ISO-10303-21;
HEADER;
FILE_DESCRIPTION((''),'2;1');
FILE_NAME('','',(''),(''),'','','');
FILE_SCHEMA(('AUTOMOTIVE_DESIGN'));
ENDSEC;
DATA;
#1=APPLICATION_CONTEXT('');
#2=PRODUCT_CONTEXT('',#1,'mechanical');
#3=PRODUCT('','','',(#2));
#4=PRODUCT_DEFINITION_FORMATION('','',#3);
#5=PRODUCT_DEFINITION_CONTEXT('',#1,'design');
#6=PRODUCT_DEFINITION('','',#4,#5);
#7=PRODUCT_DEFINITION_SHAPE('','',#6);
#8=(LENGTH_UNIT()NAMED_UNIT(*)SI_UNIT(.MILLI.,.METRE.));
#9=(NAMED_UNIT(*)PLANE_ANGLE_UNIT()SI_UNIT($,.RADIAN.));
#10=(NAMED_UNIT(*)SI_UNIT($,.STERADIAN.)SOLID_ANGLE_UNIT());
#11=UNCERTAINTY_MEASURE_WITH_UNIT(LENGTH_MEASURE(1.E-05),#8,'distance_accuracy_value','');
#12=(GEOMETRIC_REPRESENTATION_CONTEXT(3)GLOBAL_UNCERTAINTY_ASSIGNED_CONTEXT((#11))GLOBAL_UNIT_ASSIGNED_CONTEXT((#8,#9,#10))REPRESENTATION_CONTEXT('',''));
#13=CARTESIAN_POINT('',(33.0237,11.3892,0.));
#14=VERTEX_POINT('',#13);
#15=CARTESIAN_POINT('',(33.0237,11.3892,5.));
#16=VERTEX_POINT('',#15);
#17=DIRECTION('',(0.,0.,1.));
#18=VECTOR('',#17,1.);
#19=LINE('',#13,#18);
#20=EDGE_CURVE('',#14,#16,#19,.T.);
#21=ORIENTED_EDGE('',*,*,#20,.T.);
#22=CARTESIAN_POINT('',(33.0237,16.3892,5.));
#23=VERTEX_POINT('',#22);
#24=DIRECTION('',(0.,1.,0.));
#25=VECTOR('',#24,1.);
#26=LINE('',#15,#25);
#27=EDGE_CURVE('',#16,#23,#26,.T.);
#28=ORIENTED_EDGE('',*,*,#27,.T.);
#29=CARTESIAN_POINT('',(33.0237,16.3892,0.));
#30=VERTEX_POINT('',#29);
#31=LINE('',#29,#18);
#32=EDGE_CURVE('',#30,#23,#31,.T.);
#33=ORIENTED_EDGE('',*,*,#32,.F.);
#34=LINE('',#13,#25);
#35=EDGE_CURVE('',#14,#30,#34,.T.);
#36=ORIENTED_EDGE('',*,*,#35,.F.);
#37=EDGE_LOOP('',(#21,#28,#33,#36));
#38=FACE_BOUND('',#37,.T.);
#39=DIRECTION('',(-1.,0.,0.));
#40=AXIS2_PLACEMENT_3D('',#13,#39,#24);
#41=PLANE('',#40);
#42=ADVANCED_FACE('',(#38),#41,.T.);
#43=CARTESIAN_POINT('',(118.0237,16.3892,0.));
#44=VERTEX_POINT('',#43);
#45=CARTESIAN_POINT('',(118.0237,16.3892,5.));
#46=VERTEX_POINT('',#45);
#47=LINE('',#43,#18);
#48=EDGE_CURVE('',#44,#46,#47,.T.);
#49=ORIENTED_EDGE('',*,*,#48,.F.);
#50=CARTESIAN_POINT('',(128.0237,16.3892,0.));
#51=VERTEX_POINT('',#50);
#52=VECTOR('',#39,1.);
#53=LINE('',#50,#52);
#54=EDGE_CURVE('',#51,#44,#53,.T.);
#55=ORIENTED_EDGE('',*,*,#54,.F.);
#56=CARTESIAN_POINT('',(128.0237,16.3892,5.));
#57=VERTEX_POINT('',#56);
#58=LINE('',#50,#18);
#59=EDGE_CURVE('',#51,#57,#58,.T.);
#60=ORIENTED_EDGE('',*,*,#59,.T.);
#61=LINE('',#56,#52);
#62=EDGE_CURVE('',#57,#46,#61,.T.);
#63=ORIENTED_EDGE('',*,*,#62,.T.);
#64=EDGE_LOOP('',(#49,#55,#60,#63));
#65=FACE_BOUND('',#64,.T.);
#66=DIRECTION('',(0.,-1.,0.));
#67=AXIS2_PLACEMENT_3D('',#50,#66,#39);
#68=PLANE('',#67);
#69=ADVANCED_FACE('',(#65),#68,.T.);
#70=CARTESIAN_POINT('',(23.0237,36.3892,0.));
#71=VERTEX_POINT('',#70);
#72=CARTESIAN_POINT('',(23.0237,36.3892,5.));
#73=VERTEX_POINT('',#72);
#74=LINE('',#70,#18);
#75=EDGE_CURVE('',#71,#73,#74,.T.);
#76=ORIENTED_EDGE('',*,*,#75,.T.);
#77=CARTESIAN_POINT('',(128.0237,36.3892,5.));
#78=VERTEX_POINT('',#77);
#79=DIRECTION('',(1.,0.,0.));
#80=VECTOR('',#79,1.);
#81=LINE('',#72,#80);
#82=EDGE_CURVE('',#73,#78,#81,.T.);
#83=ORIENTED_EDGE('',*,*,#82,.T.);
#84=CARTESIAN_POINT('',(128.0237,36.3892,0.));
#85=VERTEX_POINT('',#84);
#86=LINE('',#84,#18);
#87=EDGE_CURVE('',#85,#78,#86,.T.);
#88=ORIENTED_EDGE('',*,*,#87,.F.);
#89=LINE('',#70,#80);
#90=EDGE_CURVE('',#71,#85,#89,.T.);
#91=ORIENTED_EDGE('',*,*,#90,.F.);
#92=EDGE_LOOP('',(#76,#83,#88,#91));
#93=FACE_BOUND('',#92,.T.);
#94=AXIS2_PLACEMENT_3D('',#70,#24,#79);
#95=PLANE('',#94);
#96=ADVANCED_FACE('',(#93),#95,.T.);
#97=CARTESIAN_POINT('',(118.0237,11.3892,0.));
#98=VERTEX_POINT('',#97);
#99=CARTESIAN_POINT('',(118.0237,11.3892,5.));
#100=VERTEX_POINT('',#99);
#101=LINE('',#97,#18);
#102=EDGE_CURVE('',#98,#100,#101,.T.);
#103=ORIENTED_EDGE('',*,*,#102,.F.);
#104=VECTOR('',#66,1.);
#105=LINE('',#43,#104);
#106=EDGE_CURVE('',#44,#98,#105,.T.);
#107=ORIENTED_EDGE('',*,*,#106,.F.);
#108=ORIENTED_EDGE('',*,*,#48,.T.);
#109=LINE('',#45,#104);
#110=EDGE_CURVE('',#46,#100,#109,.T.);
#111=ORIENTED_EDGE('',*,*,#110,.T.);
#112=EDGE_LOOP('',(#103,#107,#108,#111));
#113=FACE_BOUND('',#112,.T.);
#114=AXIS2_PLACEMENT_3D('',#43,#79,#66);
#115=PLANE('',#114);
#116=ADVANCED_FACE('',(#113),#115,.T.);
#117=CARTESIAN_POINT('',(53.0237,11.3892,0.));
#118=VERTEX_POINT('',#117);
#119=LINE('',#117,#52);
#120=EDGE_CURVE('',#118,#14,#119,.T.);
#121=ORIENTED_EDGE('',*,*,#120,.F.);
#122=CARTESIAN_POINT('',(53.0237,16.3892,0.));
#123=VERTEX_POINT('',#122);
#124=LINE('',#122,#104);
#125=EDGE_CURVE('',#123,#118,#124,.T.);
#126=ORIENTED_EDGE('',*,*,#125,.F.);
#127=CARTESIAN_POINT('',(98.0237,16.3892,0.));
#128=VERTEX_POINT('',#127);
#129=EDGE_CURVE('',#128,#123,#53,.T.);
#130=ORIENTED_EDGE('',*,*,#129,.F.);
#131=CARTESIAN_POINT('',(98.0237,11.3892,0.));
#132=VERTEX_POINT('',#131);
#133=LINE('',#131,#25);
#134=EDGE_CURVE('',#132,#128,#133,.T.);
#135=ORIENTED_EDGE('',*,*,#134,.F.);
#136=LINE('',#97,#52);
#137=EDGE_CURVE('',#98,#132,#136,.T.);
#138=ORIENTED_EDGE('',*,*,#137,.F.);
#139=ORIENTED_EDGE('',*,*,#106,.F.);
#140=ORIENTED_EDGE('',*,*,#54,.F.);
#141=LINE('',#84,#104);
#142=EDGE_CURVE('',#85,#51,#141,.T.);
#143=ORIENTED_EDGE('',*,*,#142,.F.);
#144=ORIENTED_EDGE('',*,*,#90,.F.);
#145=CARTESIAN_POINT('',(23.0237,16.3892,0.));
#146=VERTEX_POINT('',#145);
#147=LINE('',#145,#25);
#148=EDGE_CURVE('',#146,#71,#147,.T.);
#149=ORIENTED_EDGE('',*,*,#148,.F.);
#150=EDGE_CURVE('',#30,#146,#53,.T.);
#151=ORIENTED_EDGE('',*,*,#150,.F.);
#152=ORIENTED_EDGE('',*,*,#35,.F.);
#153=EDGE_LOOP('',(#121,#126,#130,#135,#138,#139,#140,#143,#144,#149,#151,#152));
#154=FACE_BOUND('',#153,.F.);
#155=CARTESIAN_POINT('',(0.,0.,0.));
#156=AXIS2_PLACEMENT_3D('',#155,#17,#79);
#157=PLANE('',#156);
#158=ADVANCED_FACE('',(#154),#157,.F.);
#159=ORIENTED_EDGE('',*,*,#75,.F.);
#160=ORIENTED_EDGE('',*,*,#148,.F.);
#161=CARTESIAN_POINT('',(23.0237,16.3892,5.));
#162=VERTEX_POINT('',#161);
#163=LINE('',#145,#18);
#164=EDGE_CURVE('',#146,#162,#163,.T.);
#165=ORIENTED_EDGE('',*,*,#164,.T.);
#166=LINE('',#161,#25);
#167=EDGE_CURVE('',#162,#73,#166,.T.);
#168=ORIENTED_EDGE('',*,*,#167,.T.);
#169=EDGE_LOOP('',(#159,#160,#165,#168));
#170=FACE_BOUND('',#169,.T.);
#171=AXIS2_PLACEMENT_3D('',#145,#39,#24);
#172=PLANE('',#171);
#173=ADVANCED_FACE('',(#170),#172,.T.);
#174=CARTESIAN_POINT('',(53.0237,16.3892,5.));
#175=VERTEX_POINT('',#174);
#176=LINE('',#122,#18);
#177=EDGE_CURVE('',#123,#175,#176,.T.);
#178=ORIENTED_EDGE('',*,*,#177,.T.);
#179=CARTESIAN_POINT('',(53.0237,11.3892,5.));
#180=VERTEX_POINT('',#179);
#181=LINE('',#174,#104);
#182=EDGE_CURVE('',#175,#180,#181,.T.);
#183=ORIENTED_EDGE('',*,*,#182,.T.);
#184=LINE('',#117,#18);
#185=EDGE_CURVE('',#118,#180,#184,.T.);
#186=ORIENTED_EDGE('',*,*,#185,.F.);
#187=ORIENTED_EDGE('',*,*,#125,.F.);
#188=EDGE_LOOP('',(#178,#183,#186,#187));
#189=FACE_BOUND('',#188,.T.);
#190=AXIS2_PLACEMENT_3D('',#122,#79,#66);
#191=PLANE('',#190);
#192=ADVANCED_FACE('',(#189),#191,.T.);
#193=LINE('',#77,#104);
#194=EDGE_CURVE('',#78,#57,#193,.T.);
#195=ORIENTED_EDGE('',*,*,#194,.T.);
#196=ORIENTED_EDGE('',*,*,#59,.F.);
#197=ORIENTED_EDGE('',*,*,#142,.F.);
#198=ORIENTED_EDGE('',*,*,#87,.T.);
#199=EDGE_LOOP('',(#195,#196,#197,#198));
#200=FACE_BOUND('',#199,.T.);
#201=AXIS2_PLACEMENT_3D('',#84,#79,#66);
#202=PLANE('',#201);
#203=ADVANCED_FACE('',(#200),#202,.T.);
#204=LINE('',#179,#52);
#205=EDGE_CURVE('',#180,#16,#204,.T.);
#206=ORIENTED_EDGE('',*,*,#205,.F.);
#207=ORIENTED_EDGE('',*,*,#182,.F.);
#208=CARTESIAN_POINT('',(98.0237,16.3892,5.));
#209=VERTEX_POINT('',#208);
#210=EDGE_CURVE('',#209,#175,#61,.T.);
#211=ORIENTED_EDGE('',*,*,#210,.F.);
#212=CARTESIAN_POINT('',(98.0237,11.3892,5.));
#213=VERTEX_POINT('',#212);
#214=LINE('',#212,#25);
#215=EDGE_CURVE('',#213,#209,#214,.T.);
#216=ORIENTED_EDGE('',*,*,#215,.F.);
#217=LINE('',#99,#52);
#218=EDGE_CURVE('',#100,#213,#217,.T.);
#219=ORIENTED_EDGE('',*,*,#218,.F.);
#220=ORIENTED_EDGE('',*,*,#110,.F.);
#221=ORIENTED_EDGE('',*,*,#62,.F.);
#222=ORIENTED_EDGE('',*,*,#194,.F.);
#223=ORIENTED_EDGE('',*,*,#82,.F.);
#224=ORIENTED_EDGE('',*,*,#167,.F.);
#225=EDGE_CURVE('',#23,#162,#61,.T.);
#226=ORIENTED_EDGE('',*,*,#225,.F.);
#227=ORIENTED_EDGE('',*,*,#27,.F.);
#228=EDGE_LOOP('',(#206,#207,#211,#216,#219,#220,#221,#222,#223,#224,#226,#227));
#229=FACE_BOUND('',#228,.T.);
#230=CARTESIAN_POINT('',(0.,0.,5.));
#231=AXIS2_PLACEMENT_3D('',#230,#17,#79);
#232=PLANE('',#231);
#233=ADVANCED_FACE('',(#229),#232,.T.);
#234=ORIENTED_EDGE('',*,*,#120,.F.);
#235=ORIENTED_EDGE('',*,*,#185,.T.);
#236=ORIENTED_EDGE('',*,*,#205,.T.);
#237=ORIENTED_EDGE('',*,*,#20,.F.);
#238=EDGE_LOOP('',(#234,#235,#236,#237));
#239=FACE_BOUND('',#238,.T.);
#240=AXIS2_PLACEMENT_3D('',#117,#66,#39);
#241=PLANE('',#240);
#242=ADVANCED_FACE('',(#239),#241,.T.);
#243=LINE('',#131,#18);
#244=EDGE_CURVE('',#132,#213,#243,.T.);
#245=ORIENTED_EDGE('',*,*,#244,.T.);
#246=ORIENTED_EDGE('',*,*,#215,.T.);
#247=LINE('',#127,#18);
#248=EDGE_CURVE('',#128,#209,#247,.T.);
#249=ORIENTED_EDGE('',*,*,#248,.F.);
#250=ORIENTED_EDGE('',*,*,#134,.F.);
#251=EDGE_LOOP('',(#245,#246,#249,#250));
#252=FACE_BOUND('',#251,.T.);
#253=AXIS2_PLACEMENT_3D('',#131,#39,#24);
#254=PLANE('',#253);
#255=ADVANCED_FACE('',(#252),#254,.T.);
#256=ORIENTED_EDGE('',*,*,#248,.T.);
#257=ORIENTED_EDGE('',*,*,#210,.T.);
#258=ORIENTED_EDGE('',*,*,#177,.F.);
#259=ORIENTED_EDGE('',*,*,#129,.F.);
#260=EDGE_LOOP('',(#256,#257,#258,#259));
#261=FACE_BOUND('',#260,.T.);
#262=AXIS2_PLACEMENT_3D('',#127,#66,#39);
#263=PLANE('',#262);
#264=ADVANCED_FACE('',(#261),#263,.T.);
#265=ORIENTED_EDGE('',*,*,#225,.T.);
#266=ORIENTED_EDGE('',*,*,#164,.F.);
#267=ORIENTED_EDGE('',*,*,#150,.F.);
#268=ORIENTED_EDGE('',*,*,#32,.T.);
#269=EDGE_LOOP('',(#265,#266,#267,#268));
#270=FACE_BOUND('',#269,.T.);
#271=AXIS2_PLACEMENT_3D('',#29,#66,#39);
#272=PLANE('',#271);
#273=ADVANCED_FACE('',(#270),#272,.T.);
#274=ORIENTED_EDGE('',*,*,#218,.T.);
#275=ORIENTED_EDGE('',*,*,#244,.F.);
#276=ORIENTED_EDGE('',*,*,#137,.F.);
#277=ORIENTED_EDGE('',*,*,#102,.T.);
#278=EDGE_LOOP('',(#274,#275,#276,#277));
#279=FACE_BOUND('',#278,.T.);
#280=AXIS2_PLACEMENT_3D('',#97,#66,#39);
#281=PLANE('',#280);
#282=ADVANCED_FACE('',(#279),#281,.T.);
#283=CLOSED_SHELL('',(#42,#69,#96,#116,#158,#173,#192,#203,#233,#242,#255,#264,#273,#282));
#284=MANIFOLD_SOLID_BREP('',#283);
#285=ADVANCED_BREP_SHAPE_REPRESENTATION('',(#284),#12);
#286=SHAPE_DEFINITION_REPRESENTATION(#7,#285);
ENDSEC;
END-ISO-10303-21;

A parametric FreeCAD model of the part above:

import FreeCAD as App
import Part
import Sketcher

V = App.Vector
Q = App.Units.Quantity

doc = App.newDocument("Part")
body = doc.addObject("PartDesign::Body", "Body")

# Sketch on XY plane
sketch1 = body.newObject("Sketcher::SketchObject", "Sketch")
sketch1.AttachmentSupport = (doc.getObject("XY_Plane"), [""])
sketch1.MapMode = "FlatFace"
sketch1.addGeometry([
    Part.LineSegment(V(128.0237, 36.3892, 0), V(23.0237, 36.3892, 0)),  # 0
    Part.LineSegment(V(23.0237, 36.3892, 0), V(23.0237, 16.3892, 0)),  # 1
    Part.LineSegment(V(23.0237, 16.3892, 0), V(33.0237, 16.3892, 0)),  # 2
    Part.LineSegment(V(33.0237, 16.3892, 0), V(33.0237, 11.3892, 0)),  # 3
    Part.LineSegment(V(33.0237, 11.3892, 0), V(53.0237, 11.3892, 0)),  # 4
    Part.LineSegment(V(53.0237, 11.3892, 0), V(53.0237, 16.3892, 0)),  # 5
    Part.LineSegment(V(53.0237, 16.3892, 0), V(98.0237, 16.3892, 0)),  # 6
    Part.LineSegment(V(98.0237, 16.3892, 0), V(98.0237, 11.3892, 0)),  # 7
    Part.LineSegment(V(98.0237, 11.3892, 0), V(118.0237, 11.3892, 0)),  # 8
    Part.LineSegment(V(118.0237, 11.3892, 0), V(118.0237, 16.3892, 0)),  # 9
    Part.LineSegment(V(118.0237, 16.3892, 0), V(128.0237, 16.3892, 0)),  # 10
    Part.LineSegment(V(128.0237, 16.3892, 0), V(128.0237, 36.3892, 0)),  # 11
], False)
sketch1.addConstraint([
    Sketcher.Constraint("Coincident", 0, 2, 1, 1),
    Sketcher.Constraint("Coincident", 1, 2, 2, 1),
    Sketcher.Constraint("Coincident", 2, 2, 3, 1),
    Sketcher.Constraint("Coincident", 3, 2, 4, 1),
    Sketcher.Constraint("Coincident", 4, 2, 5, 1),
    Sketcher.Constraint("Coincident", 5, 2, 6, 1),
    Sketcher.Constraint("Coincident", 6, 2, 7, 1),
    Sketcher.Constraint("Coincident", 7, 2, 8, 1),
    Sketcher.Constraint("Coincident", 8, 2, 9, 1),
    Sketcher.Constraint("Coincident", 9, 2, 10, 1),
    Sketcher.Constraint("Coincident", 10, 2, 11, 1),
    Sketcher.Constraint("Coincident", 11, 2, 0, 1),
    Sketcher.Constraint("Horizontal", 0),
    Sketcher.Constraint("Vertical", 1),
    Sketcher.Constraint("Horizontal", 2),
    Sketcher.Constraint("Vertical", 3),
    Sketcher.Constraint("Horizontal", 4),
    Sketcher.Constraint("Vertical", 5),
    Sketcher.Constraint("Horizontal", 6),
    Sketcher.Constraint("Vertical", 7),
    Sketcher.Constraint("Horizontal", 8),
    Sketcher.Constraint("Vertical", 9),
    Sketcher.Constraint("Horizontal", 10),
    Sketcher.Constraint("Vertical", 11),
    Sketcher.Constraint("Horizontal", 2, 2, 5, 2),
    Sketcher.Constraint("Horizontal", 4, 2, 7, 2),
    Sketcher.Constraint("Horizontal", 6, 2, 9, 2),
    Sketcher.Constraint("Equal", 4, 8),
    Sketcher.Constraint("Equal", 2, 10),
    Sketcher.Constraint("Equal", 8, 1),
    Sketcher.Constraint("DistanceX", 0, 2, 0, 1, Q("105 mm")),
    Sketcher.Constraint("DistanceX", 2, 1, 2, 2, Q("10 mm")),
    Sketcher.Constraint("DistanceX", 4, 1, 4, 2, Q("20 mm")),
    Sketcher.Constraint("DistanceY", 3, 2, 3, 1, Q("5 mm")),
    Sketcher.Constraint("DistanceX", -1, 1, 0, 2, Q("23.0237 mm")),
    Sketcher.Constraint("DistanceY", -1, 1, 0, 2, Q("36.3892 mm")),
])
pad1 = body.newObject("PartDesign::Pad", "Pad")
pad1.Profile = sketch1
pad1.Length = 5

doc.recompute()
